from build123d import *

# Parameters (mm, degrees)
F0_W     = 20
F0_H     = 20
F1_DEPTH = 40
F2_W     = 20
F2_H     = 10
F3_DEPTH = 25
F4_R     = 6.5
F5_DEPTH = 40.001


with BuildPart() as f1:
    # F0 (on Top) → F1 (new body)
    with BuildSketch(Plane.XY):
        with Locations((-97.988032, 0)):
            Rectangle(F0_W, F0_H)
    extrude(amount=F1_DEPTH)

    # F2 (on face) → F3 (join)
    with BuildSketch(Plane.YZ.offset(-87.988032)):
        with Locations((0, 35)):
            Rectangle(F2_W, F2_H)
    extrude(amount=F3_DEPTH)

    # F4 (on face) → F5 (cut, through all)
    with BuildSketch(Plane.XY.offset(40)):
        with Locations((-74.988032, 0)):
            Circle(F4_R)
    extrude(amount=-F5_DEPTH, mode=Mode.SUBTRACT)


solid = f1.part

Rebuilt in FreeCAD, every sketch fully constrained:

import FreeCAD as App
import Part
import Sketcher

V = App.Vector
Q = App.Units.Quantity


def add_polygon(sketch, points):
    """Adds a closed chain of lines whose ends are joined by coincident constraints."""
    first, n = sketch.GeometryCount, len(points)
    for a, b in zip(points, points[1:] + points[:1]):
        sketch.addGeometry(Part.LineSegment(App.Vector(*a, 0), App.Vector(*b, 0)), False)
    for i in range(n):
        sketch.addConstraint(Sketcher.Constraint("Coincident", first + i, 2, first + (i + 1) % n, 1))

doc = App.newDocument("Part")
body = doc.addObject("PartDesign::Body", "Body")

# Sketch on XY plane
sketch1 = body.newObject("Sketcher::SketchObject", "Sketch")
sketch1.AttachmentSupport = (doc.getObject("XY_Plane"), [""])
sketch1.MapMode = "FlatFace"
add_polygon(sketch1, [(-108, 10), (-108, -10), (-88, -10), (-88, 10)])  # lines 0-3
sketch1.addConstraint([
    Sketcher.Constraint("Vertical", 0),
    Sketcher.Constraint("Horizontal", 1),
    Sketcher.Constraint("Vertical", 2),
    Sketcher.Constraint("Horizontal", 3),
    Sketcher.Constraint("Equal", 3, 0),
    Sketcher.Constraint("DistanceX", 1, 1, 1, 2, Q("20 mm")),
    Sketcher.Constraint("DistanceY", 0, 2, -1, 1, Q("10 mm")),
    Sketcher.Constraint("DistanceX", 0, 2, -1, 1, Q("107.988032 mm")),
])
pad1 = body.newObject("PartDesign::Pad", "Pad")
pad1.Profile = sketch1
pad1.Length = 40

# Sketch on YZ plane
sketch2 = body.newObject("Sketcher::SketchObject", "Sketch001")
sketch2.AttachmentSupport = (doc.getObject("YZ_Plane"), [""])
sketch2.MapMode = "FlatFace"
sketch2.AttachmentOffset = App.Placement(V(0, 0, -87.988032), App.Rotation())
add_polygon(sketch2, [(-10, 40), (-10, 30), (10, 30), (10, 40)])  # lines 0-3
sketch2.addConstraint([
    Sketcher.Constraint("Vertical", 0),
    Sketcher.Constraint("Horizontal", 1),
    Sketcher.Constraint("Vertical", 2),
    Sketcher.Constraint("Horizontal", 3),
    Sketcher.Constraint("DistanceX", 1, 1, 1, 2, Q("20 mm")),
    Sketcher.Constraint("DistanceY", 0, 2, 0, 1, Q("10 mm")),
    Sketcher.Constraint("DistanceX", 0, 2, -1, 1, Q("10 mm")),
    Sketcher.Constraint("DistanceY", -1, 1, 0, 2, Q("30 mm")),
])
pad2 = body.newObject("PartDesign::Pad", "Pad001")
pad2.Profile = sketch2
pad2.Length = 25

# Sketch on XY plane
sketch3 = body.newObject("Sketcher::SketchObject", "Sketch002")
sketch3.AttachmentSupport = (doc.getObject("XY_Plane"), [""])
sketch3.MapMode = "FlatFace"
sketch3.AttachmentOffset = App.Placement(V(0, 0, 40), App.Rotation())
sketch3.addGeometry(Part.Circle(V(-75, 0, 0), V(0, 0, 1), 6), False)
sketch3.addConstraint([
    Sketcher.Constraint("PointOnObject", 0, 3, -1),
    Sketcher.Constraint("Diameter", 0, Q("13 mm")),
    Sketcher.Constraint("DistanceX", 0, 3, -1, 1, Q("74.988032 mm")),
])
pocket1 = body.newObject("PartDesign::Pocket", "Pocket")
pocket1.Profile = sketch3
pocket1.Type = "ThroughAll"

doc.recompute()
